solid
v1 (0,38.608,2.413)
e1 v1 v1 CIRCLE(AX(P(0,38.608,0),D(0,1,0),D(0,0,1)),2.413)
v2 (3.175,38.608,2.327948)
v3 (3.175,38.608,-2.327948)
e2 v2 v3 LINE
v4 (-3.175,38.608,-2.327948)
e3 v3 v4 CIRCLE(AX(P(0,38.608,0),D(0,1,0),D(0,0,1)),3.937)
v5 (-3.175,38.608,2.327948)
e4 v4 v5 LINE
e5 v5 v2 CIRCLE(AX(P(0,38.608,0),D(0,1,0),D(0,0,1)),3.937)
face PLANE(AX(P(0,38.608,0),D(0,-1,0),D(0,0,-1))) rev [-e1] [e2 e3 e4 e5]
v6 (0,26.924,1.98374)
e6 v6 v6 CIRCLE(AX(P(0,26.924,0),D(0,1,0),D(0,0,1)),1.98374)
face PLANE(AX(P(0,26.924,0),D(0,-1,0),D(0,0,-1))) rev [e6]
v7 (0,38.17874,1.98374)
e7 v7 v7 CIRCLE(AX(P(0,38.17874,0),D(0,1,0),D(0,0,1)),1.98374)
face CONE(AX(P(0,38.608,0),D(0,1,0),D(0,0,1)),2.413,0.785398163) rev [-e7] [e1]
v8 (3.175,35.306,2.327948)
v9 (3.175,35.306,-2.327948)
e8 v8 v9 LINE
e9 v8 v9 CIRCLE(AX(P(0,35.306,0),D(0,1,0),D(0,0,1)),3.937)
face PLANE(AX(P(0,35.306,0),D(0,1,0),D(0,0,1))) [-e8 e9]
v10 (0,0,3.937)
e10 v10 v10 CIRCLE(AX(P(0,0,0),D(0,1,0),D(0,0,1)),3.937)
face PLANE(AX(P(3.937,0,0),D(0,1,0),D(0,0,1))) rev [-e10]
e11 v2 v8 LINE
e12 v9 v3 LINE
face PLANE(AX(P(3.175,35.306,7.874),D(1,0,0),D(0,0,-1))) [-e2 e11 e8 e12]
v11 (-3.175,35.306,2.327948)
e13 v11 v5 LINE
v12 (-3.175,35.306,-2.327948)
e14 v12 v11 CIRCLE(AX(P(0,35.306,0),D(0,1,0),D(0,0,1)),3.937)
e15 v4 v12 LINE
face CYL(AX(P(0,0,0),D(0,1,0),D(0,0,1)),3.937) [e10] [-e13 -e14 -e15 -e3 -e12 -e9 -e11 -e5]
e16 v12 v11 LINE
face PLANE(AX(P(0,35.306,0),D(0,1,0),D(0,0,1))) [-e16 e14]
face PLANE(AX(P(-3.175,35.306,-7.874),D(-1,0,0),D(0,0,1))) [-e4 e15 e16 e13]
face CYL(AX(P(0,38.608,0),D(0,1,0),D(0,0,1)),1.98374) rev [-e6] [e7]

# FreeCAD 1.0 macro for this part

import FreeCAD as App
import Part
import Sketcher
Q = App.Units.Quantity


def add_polygon(sketch, points):
    """Adds a closed chain of lines whose ends are joined by coincident constraints."""
    first, n = sketch.GeometryCount, len(points)
    for a, b in zip(points, points[1:] + points[:1]):
        sketch.addGeometry(Part.LineSegment(App.Vector(*a, 0), App.Vector(*b, 0)), False)
    for i in range(n):
        sketch.addConstraint(Sketcher.Constraint("Coincident", first + i, 2, first + (i + 1) % n, 1))

doc = App.newDocument("Part")
body = doc.addObject("PartDesign::Body", "Body")

# Sketch on XY plane
sketch1 = doc.addObject("Sketcher::SketchObject", "Sketch")
body.addObject(sketch1)
sketch1.AttachmentSupport = (doc.XY_Plane, [""])
sketch1.MapMode = "FlatFace"
add_polygon(sketch1, [(0, 38.6), (0, 0), (3.9, 0), (3.9, 38.6)])  # lines 0-3
sketch1.addConstraint([
    Sketcher.Constraint("Vertical", 0),
    Sketcher.Constraint("Horizontal", 1),
    Sketcher.Constraint("Vertical", 2),
    Sketcher.Constraint("Horizontal", 3),
    Sketcher.Constraint("Coincident", 0, 2, -1, 1),
    Sketcher.Constraint("DistanceY", 0, 2, 0, 1, Q("1.52 in")),
    Sketcher.Constraint("DistanceX", 1, 1, 1, 2, Q("0.155 in")),
])
revolution = doc.addObject("PartDesign::Revolution", "Revolution")
body.addObject(revolution)
revolution.Profile = sketch1
revolution.ReferenceAxis = (sketch1, ["V_Axis"])
revolution.Angle = 360

# Sketch on XZ plane
sketch2 = doc.addObject("Sketcher::SketchObject", "Sketch001")
body.addObject(sketch2)
sketch2.AttachmentSupport = (doc.XZ_Plane, [""])
sketch2.MapMode = "FlatFace"
sketch2.AttachmentOffset = App.Placement(App.Vector(0, 0, -1.52 * 25.4), App.Rotation())
sketch2.addGeometry(Part.Circle(App.Vector(0, 0, 0), App.Vector(0, 0, 1), 2), False)
sketch2.addConstraint([
    Sketcher.Constraint("Coincident", 0, 3, -1, 1),
    Sketcher.Constraint("Diameter", 0, Q("0.1562 in")),
])
doc.recompute()
hole = doc.addObject("PartDesign::Hole", "Hole")
body.addObject(hole)
hole.Profile = sketch2
hole.ThreadType = "None"
hole.Diameter = Q("0.1562 in")
hole.DepthType = "Dimension"
hole.Depth = Q("0.46 in")
hole.DrillPoint = "Flat"
hole.HoleCutType = "Countersink"
hole.HoleCutDiameter = Q("0.19 in")
hole.HoleCutCountersinkAngle = 90
hole.Reversed = True

# Sketch on XZ plane
sketch3 = doc.addObject("Sketcher::SketchObject", "Sketch002")
body.addObject(sketch3)
sketch3.AttachmentSupport = (doc.XZ_Plane, [""])
sketch3.MapMode = "FlatFace"
sketch3.AttachmentOffset = App.Placement(App.Vector(0, 0, -1.52 * 25.4), App.Rotation())
add_polygon(sketch3, [(-6, -16), (-6, 16), (6, 16), (6, -16)])  # lines 0-3
add_polygon(sketch3, [(3, 8), (-3, 8), (-3, -8), (3, -8)])  # lines 4-7
sketch3.addConstraint([
    Sketcher.Constraint("Vertical", 0),
    Sketcher.Constraint("Horizontal", 1),
    Sketcher.Constraint("Vertical", 2),
    Sketcher.Constraint("Horizontal", 3),
    Sketcher.Constraint("Horizontal", 4),
    Sketcher.Constraint("Vertical", 5),
    Sketcher.Constraint("Horizontal", 6),
    Sketcher.Constraint("Vertical", 7),
    Sketcher.Constraint("Symmetric", 0, 2, 2, 2, -1, 1),
    Sketcher.Constraint("Symmetric", 4, 2, 6, 2, -1, 1),
    Sketcher.Constraint("DistanceX", 1, 1, 1, 2, Q("0.5 in")),
    Sketcher.Constraint("DistanceX", 4, 2, 4, 1, Q("0.25 in")),
    Sketcher.Constraint("DistanceY", 0, 1, 0, 2, Q("1.24 in")),
    Sketcher.Constraint("DistanceY", 5, 2, 5, 1, Q("0.62 in")),
])
pocket1 = doc.addObject("PartDesign::Pocket", "Pocket")
body.addObject(pocket1)
pocket1.Profile = sketch3
pocket1.Length = Q("0.13 in")
pocket1.Reversed = True

doc.recompute()
